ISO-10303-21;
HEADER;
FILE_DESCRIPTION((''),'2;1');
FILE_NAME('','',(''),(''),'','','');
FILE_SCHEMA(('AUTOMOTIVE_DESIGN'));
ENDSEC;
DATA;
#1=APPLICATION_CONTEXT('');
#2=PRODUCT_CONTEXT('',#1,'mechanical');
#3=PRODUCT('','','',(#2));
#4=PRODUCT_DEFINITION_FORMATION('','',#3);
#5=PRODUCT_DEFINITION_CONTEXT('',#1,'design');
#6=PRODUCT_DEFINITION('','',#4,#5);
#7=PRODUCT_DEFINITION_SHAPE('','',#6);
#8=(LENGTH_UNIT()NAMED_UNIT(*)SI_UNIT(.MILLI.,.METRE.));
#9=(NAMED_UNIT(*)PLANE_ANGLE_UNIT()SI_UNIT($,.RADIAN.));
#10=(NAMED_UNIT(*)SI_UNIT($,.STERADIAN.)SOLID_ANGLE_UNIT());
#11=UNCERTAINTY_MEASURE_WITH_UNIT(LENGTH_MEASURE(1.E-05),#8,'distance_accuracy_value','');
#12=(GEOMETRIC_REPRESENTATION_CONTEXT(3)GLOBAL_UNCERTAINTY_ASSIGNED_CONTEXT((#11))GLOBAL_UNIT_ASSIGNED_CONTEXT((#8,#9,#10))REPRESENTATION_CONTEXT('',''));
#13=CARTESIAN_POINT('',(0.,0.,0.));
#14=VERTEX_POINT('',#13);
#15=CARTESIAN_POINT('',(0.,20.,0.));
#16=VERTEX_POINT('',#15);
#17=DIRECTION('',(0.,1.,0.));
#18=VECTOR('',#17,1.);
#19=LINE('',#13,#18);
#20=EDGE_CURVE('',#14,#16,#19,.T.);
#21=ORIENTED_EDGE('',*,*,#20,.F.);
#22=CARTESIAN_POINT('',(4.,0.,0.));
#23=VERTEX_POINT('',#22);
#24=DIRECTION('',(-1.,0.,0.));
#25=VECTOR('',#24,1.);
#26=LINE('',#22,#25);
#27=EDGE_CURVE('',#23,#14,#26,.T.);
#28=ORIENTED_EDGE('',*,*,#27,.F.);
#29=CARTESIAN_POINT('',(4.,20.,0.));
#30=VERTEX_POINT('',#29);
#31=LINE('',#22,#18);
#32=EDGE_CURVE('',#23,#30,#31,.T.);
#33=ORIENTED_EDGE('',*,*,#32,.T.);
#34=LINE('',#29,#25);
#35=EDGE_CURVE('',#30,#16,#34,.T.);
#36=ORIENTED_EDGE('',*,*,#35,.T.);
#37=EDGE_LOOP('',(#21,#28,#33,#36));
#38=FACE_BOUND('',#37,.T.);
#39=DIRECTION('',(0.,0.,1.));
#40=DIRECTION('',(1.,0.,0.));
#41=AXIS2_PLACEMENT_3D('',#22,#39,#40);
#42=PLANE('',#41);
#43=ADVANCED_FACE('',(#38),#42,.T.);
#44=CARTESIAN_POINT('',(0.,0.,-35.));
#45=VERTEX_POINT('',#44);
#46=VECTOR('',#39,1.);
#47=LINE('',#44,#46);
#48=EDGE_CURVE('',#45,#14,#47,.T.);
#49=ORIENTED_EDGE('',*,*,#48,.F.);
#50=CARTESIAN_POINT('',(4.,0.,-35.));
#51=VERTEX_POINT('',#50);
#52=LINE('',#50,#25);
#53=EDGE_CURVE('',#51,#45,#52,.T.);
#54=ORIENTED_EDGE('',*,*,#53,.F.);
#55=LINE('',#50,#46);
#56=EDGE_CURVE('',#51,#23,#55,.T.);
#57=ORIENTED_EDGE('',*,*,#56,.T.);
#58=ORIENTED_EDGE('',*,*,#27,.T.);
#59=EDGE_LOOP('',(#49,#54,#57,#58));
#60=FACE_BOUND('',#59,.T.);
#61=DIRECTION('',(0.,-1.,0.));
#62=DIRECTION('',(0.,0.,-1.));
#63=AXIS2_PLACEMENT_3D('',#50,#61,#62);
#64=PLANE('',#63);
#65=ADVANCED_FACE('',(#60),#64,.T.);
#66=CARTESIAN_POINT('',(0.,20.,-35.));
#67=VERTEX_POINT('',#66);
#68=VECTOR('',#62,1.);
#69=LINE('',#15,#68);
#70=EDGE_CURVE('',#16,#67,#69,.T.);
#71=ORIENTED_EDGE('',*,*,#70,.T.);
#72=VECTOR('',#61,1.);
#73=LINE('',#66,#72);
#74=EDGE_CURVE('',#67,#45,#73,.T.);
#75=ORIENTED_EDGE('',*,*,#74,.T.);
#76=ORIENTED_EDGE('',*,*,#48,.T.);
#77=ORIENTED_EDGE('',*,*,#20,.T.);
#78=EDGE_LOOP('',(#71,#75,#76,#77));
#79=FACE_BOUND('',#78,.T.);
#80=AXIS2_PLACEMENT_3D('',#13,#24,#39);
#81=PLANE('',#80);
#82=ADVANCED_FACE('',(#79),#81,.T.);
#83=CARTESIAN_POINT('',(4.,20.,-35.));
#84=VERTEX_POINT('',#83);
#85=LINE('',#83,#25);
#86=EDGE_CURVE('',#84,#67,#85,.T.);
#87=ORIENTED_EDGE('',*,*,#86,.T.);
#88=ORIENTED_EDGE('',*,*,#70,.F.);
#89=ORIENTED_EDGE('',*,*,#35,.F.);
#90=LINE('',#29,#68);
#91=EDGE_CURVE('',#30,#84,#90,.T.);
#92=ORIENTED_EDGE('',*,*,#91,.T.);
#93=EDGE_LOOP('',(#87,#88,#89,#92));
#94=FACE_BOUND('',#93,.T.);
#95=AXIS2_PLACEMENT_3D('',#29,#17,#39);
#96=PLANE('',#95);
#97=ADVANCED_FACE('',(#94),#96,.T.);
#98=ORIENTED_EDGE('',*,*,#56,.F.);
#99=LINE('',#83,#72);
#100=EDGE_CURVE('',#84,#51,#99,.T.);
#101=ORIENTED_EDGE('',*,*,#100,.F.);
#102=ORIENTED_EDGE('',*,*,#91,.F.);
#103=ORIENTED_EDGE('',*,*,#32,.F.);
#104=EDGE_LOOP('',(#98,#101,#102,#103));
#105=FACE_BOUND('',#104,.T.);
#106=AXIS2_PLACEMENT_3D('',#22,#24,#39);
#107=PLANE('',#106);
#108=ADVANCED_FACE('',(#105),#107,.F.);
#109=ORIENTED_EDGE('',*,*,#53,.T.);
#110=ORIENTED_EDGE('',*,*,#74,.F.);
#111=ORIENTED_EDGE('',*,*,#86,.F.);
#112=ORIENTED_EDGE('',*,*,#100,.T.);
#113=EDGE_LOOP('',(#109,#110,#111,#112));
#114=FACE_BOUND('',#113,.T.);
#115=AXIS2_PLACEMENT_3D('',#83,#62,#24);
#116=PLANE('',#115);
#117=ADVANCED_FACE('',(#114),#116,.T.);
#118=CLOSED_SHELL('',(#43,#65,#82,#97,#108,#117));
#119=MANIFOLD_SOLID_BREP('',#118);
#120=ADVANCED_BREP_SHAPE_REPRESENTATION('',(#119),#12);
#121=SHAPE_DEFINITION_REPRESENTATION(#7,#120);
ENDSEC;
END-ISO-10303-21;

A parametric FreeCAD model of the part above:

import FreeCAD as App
import Part
import Sketcher

V = App.Vector

doc = App.newDocument("Part")
body = doc.addObject("PartDesign::Body", "Body")

# Sketch on YZ plane
sketch1 = body.newObject("Sketcher::SketchObject", "Sketch")
sketch1.AttachmentSupport = (doc.getObject("YZ_Plane"), [""])
sketch1.MapMode = "FlatFace"
sketch1.addGeometry([
    Part.LineSegment(V(20, 0, 0), V(0, 0, 0)),
    Part.LineSegment(V(0, 0, 0), V(0, -35, 0)),
    Part.LineSegment(V(0, -35, 0), V(20, -35, 0)),
    Part.LineSegment(V(20, -35, 0), V(20, 0, 0)),
], False)
sketch1.addConstraint([
    Sketcher.Constraint("Coincident", 0, 2, 1, 1),
    Sketcher.Constraint("Coincident", 1, 2, 2, 1),
    Sketcher.Constraint("Coincident", 2, 2, 3, 1),
    Sketcher.Constraint("Coincident", 3, 2, 0, 1),
    Sketcher.Constraint("Horizontal", 0),
    Sketcher.Constraint("Vertical", 1),
    Sketcher.Constraint("Horizontal", 2),
    Sketcher.Constraint("Vertical", 3),
    Sketcher.Constraint("Coincident", 0, 2, -1, 1),
    Sketcher.Constraint("DistanceX", 0, 2, 0, 1, 20.0),
    Sketcher.Constraint("DistanceY", 1, 2, 1, 1, 35.0),
])
pad1 = body.newObject("PartDesign::Pad", "Pad")
pad1.Profile = sketch1
pad1.Length = 4

doc.recompute()
